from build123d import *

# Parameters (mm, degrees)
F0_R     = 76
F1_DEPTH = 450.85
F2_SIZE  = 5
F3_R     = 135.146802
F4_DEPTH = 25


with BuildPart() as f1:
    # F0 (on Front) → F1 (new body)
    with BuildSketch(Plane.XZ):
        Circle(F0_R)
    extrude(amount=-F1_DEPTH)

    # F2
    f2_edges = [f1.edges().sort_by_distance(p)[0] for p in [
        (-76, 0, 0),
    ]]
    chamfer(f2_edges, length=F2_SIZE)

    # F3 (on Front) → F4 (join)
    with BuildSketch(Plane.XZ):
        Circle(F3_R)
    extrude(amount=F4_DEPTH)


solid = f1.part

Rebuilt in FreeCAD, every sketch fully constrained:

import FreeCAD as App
import Part
import Sketcher
from FreeCAD import Vector


def edges_at(feature, points):
    """Names of the edges that pass closest to the given points."""
    edges = feature.Shape.Edges
    near = lambda p: min(range(len(edges)), key=lambda i: edges[i].distToShape(Part.Vertex(*p))[0])
    return sorted({f"Edge{near(p) + 1}" for p in points})

doc = App.newDocument("Part")
params = doc.addObject("Spreadsheet::Sheet", "Params")
for row, (alias, value) in enumerate([
    ("sketch1_diameter", "152 mm"),
    ("pad1_length", "450.85 mm"),
    ("chamfer_size", "5 mm"),
    ("pad2_length", "25 mm"),
], start=1):
    params.set(f"A{row}", alias)
    params.set(f"B{row}", "=" + value)
    params.setAlias(f"B{row}", alias)

body = doc.addObject("PartDesign::Body", "Body")

sketch1 = body.newObject("Sketcher::SketchObject", "Sketch")
sketch1.AttachmentSupport = (doc.getObject("XZ_Plane"), [""])
sketch1.MapMode = "FlatFace"
sketch1.addGeometry(Part.Circle(Vector(0, 0, 0), Vector(0, 0, 1), 76), False)
sketch1.addConstraint([
    Sketcher.Constraint("Coincident", 0, 3, -1, 1),
    Sketcher.Constraint("Diameter", 0, 152.0),
])
sketch1.setExpression("Constraints[1]", "Params.sketch1_diameter")
pad1 = body.newObject("PartDesign::Pad", "Pad")
pad1.Profile = sketch1
pad1.setExpression("Length", "Params.pad1_length")
pad1.Reversed = True
doc.recompute()

chamfer = body.newObject("PartDesign::Chamfer", "Chamfer")
chamfer.Base = (pad1, edges_at(pad1, [(-76, 0, 0)]))
chamfer.setExpression("Size", "Params.chamfer_size")

sketch2 = body.newObject("Sketcher::SketchObject", "Sketch001")
sketch2.AttachmentSupport = (doc.getObject("XZ_Plane"), [""])
sketch2.MapMode = "FlatFace"
sketch2.addGeometry(Part.Circle(Vector(0, 0, 0), Vector(0, 0, 1), 135), False)
sketch2.addConstraint([
    Sketcher.Constraint("Coincident", 0, 3, -1, 1),
    Sketcher.Constraint("Diameter", 0, 270.293604),
])
pad2 = body.newObject("PartDesign::Pad", "Pad001")
pad2.Profile = sketch2
pad2.setExpression("Length", "Params.pad2_length")

doc.recompute()
